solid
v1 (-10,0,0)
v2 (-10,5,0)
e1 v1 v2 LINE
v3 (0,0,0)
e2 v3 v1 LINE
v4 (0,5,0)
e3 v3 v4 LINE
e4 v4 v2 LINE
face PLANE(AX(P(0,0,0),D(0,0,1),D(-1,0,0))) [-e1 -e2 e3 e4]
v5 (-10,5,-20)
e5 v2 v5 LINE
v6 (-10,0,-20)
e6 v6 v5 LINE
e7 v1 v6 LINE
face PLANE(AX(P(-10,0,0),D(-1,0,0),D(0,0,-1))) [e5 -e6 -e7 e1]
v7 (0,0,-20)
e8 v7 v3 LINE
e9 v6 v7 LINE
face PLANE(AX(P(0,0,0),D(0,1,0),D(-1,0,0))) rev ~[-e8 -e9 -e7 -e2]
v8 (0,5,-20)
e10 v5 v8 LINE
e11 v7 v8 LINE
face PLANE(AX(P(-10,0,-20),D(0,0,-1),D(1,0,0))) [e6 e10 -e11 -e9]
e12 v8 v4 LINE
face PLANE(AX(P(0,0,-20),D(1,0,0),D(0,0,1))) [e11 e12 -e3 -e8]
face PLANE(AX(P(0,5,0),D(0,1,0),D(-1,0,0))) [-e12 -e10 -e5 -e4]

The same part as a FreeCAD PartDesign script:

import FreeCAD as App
import Part
import Sketcher
from FreeCAD import Vector


def add_polygon(sketch, points):
    """Adds a closed chain of lines whose ends are joined by coincident constraints."""
    first, n = sketch.GeometryCount, len(points)
    for a, b in zip(points, points[1:] + points[:1]):
        sketch.addGeometry(Part.LineSegment(App.Vector(*a, 0), App.Vector(*b, 0)), False)
    for i in range(n):
        sketch.addConstraint(Sketcher.Constraint("Coincident", first + i, 2, first + (i + 1) % n, 1))

doc = App.newDocument("Part")
params = doc.addObject("Spreadsheet::Sheet", "Params")
for row, (alias, value) in enumerate([
    ("sketch1_width", "10 mm"),
    ("sketch1_height", "20 mm"),
    ("pad1_length", "5 mm"),
], start=1):
    params.set(f"A{row}", alias)
    params.set(f"B{row}", "=" + value)
    params.setAlias(f"B{row}", alias)

body = doc.addObject("PartDesign::Body", "Body")

# Sketch on XZ plane
sketch1 = body.newObject("Sketcher::SketchObject", "Sketch")
sketch1.AttachmentSupport = (doc.getObject("XZ_Plane"), [""])
sketch1.MapMode = "FlatFace"
add_polygon(sketch1, [(-10, 0), (0, 0), (0, -20), (-10, -20)])  # lines 0-3
sketch1.addConstraint(Sketcher.Constraint("Horizontal", 0))
sketch1.addConstraint(Sketcher.Constraint("Vertical", 1))
sketch1.addConstraint(Sketcher.Constraint("Horizontal", 2))
sketch1.addConstraint(Sketcher.Constraint("Vertical", 3))
sketch1.addConstraint(Sketcher.Constraint("Coincident", 0, 2, -1, 1))
sketch1.addConstraint(Sketcher.Constraint("DistanceX", 0, 1, 0, 2, 10.0))
sketch1.addConstraint(Sketcher.Constraint("DistanceY", 1, 2, 1, 1, 20.0))
sketch1.setExpression("Constraints[9]", "Params.sketch1_width")
sketch1.setExpression("Constraints[10]", "Params.sketch1_height")
pad1 = body.newObject("PartDesign::Pad", "Pad")
pad1.Profile = sketch1
pad1.setExpression("Length", "Params.pad1_length")
pad1.Reversed = True

doc.recompute()
